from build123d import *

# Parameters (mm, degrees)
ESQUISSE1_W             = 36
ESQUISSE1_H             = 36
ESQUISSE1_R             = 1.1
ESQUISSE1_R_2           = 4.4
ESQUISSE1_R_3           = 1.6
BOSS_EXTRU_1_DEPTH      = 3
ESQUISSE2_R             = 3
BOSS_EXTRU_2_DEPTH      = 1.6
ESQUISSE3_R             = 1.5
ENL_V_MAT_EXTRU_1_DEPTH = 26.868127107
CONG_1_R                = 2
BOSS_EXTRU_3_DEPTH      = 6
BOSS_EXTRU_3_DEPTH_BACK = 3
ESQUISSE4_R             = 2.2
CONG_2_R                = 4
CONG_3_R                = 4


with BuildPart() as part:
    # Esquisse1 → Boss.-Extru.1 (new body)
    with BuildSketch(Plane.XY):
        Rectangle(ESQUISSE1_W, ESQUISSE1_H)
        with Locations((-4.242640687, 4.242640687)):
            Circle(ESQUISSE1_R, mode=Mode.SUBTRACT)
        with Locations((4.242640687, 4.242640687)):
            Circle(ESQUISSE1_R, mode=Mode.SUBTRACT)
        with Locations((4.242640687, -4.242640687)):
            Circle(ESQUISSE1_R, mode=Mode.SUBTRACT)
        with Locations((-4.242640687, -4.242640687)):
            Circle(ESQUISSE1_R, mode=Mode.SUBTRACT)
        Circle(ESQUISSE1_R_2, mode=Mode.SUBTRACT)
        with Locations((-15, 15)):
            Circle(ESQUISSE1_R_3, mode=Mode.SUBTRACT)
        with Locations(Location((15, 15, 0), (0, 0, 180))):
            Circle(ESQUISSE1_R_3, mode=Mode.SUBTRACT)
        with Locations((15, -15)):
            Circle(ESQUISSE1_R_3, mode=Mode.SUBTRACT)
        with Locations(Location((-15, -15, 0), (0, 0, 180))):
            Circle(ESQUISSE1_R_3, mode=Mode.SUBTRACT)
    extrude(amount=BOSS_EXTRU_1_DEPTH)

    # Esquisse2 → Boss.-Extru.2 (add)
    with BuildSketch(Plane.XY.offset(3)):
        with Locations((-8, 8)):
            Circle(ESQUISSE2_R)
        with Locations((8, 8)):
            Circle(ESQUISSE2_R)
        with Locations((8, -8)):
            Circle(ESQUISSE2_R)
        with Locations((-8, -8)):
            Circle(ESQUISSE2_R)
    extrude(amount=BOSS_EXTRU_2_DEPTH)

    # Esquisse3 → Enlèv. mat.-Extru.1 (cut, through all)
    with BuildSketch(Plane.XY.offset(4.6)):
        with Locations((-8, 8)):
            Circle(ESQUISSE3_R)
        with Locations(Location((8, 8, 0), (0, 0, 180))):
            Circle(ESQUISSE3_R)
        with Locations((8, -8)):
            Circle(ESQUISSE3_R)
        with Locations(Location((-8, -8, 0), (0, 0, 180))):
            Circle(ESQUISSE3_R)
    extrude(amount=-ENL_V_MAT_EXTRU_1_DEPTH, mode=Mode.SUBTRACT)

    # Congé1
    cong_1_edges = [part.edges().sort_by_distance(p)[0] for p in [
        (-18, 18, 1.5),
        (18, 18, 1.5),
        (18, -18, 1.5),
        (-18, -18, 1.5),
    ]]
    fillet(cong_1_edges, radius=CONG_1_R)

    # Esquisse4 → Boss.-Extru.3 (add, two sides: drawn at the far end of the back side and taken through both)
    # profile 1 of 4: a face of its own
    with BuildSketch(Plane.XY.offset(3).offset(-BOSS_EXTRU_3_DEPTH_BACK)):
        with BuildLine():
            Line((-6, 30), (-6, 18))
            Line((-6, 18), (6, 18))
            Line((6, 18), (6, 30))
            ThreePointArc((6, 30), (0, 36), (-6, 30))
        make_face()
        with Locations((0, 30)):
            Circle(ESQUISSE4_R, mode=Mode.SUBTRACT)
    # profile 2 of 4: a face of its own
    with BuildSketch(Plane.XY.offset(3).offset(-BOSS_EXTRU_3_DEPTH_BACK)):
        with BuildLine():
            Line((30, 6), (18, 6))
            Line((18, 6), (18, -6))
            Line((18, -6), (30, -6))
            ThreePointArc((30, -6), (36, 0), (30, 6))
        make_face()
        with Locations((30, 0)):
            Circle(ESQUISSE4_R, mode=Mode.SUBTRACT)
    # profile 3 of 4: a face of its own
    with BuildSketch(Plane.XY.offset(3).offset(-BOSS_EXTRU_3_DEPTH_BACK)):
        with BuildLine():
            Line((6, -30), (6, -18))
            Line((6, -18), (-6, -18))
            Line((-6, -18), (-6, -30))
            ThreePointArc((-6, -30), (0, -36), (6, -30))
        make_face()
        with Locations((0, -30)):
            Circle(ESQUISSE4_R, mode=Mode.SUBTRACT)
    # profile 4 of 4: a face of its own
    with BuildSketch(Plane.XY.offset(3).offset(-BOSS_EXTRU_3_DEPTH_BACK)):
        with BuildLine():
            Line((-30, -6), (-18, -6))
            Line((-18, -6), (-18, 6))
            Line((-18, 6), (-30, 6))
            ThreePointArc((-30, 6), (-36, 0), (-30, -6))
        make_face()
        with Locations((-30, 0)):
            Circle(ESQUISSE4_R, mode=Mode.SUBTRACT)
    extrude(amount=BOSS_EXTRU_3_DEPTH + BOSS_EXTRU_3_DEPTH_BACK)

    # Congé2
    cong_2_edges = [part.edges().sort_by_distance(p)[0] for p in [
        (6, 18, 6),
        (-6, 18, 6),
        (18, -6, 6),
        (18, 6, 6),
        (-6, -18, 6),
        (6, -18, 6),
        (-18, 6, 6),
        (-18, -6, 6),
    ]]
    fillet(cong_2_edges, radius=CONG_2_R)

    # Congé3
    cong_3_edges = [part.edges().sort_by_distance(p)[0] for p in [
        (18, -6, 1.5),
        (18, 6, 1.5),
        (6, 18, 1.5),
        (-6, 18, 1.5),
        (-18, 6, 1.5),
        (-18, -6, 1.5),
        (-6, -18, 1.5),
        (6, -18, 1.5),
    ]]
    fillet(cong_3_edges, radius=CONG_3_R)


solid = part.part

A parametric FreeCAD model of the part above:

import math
import FreeCAD as App
import Part
import Sketcher

V = App.Vector
Q = App.Units.Quantity


def edges_at(feature, points):
    """Names of the edges that pass closest to the given points."""
    edges = feature.Shape.Edges
    near = lambda p: min(range(len(edges)), key=lambda i: edges[i].distToShape(Part.Vertex(*p))[0])
    return sorted({f"Edge{near(p) + 1}" for p in points})


def add_polygon(sketch, points):
    """Adds a closed chain of lines whose ends are joined by coincident constraints."""
    first, n = sketch.GeometryCount, len(points)
    for a, b in zip(points, points[1:] + points[:1]):
        sketch.addGeometry(Part.LineSegment(App.Vector(*a, 0), App.Vector(*b, 0)), False)
    for i in range(n):
        sketch.addConstraint(Sketcher.Constraint("Coincident", first + i, 2, first + (i + 1) % n, 1))

doc = App.newDocument("Part")
body = doc.addObject("PartDesign::Body", "Body")

sketch1 = body.newObject("Sketcher::SketchObject", "Sketch")
sketch1.AttachmentSupport = (doc.getObject("XY_Plane"), [""])
sketch1.MapMode = "FlatFace"
add_polygon(sketch1, [(-18, 18), (-18, -18), (18, -18), (18, 18)])
sketch1.addGeometry(Part.Circle(V(-15, -15, 0), V(0, 0, 1), 1.6), False)
sketch1.addGeometry(Part.Circle(V(-4.2, -4.2, 0), V(0, 0, 1), 1.1), False)
sketch1.addGeometry(Part.Circle(V(15, -15, 0), V(0, 0, 1), 1.6), False)
sketch1.addGeometry(Part.Circle(V(4.2, -4.2, 0), V(0, 0, 1), 1.1), False)
sketch1.addGeometry(Part.Circle(V(-4.2, 4.2, 0), V(0, 0, 1), 1.1), False)
sketch1.addGeometry(Part.Circle(V(-15, 15, 0), V(0, 0, 1), 1.6), False)
sketch1.addGeometry(Part.Circle(V(0, 0, 0), V(0, 0, 1), 4.4), False)
sketch1.addGeometry(Part.Circle(V(4.2, 4.2, 0), V(0, 0, 1), 1.1), False)
sketch1.addGeometry(Part.Circle(V(15, 15, 0), V(0, 0, 1), 1.6), False)
sketch1.addConstraint(Sketcher.Constraint("Vertical", 0))
sketch1.addConstraint(Sketcher.Constraint("Horizontal", 1))
sketch1.addConstraint(Sketcher.Constraint("Vertical", 2))
sketch1.addConstraint(Sketcher.Constraint("Horizontal", 3))
sketch1.addConstraint(Sketcher.Constraint("Coincident", 10, 3, -1, 1))
sketch1.addConstraint(Sketcher.Constraint("Equal", 4, 6))
sketch1.addConstraint(Sketcher.Constraint("Equal", 5, 7))
sketch1.addConstraint(Sketcher.Constraint("Equal", 7, 8))
sketch1.addConstraint(Sketcher.Constraint("Equal", 6, 9))
sketch1.addConstraint(Sketcher.Constraint("Equal", 8, 11))
sketch1.addConstraint(Sketcher.Constraint("Equal", 9, 12))
sketch1.addConstraint(Sketcher.Constraint("Symmetric", 7, 3, 8, 3, -1, 1))
sketch1.addConstraint(Sketcher.Constraint("Symmetric", 6, 3, 9, 3, -1, 1))
sketch1.addConstraint(Sketcher.Constraint("Symmetric", 5, 3, 11, 3, -1, 1))
sketch1.addConstraint(Sketcher.Constraint("Symmetric", 4, 3, 12, 3, -1, 1))
sketch1.addConstraint(Sketcher.Constraint("Symmetric", 0, 2, 2, 2, -1, 1))
sketch1.addConstraint(Sketcher.Constraint("Symmetric", 4, 3, 6, 3, -2))
sketch1.addConstraint(Sketcher.Constraint("Symmetric", 5, 3, 7, 3, -2))
sketch1.addConstraint(Sketcher.Constraint("Equal", 3, 0))
sketch1.addConstraint(Sketcher.Constraint("Diameter", 4, Q("3.2 mm")))
sketch1.addConstraint(Sketcher.Constraint("Diameter", 5, Q("2.2 mm")))
sketch1.addConstraint(Sketcher.Constraint("Diameter", 10, Q("8.8 mm")))
sketch1.addConstraint(Sketcher.Constraint("DistanceX", 1, 1, 1, 2, Q("36 mm")))
sketch1.addConstraint(Sketcher.Constraint("DistanceX", 4, 3, -1, 1, Q("15 mm")))
sketch1.addConstraint(Sketcher.Constraint("DistanceY", 4, 3, -1, 1, Q("15 mm")))
sketch1.addConstraint(Sketcher.Constraint("DistanceX", 5, 3, -1, 1, Q("4.242641 mm")))
sketch1.addConstraint(Sketcher.Constraint("DistanceY", 5, 3, -1, 1, Q("4.242641 mm")))
pad1 = body.newObject("PartDesign::Pad", "Pad")
pad1.Profile = sketch1
pad1.Length = 3

sketch2 = body.newObject("Sketcher::SketchObject", "Sketch001")
sketch2.AttachmentSupport = (doc.getObject("XY_Plane"), [""])
sketch2.MapMode = "FlatFace"
sketch2.AttachmentOffset = App.Placement(V(0, 0, 3), App.Rotation())
sketch2.addGeometry(Part.Circle(V(-8, 8, 0), V(0, 0, 1), 3), False)
sketch2.addGeometry(Part.Circle(V(8, 8, 0), V(0, 0, 1), 3), False)
sketch2.addGeometry(Part.Circle(V(8, -8, 0), V(0, 0, 1), 3), False)
sketch2.addGeometry(Part.Circle(V(-8, -8, 0), V(0, 0, 1), 3), False)
sketch2.addConstraint(Sketcher.Constraint("Equal", 0, 1))
sketch2.addConstraint(Sketcher.Constraint("Equal", 1, 2))
sketch2.addConstraint(Sketcher.Constraint("Equal", 2, 3))
sketch2.addConstraint(Sketcher.Constraint("Symmetric", 0, 3, 2, 3, -1, 1))
sketch2.addConstraint(Sketcher.Constraint("Symmetric", 1, 3, 3, 3, -1, 1))
sketch2.addConstraint(Sketcher.Constraint("Symmetric", 0, 3, 1, 3, -2))
sketch2.addConstraint(Sketcher.Constraint("Diameter", 0, Q("6 mm")))
sketch2.addConstraint(Sketcher.Constraint("DistanceX", 0, 3, -1, 1, Q("8 mm")))
sketch2.addConstraint(Sketcher.Constraint("DistanceY", -1, 1, 0, 3, Q("8 mm")))
pad2 = body.newObject("PartDesign::Pad", "Pad001")
pad2.Profile = sketch2
pad2.Length = 1.6

sketch3 = body.newObject("Sketcher::SketchObject", "Sketch002")
sketch3.AttachmentSupport = (doc.getObject("XY_Plane"), [""])
sketch3.MapMode = "FlatFace"
sketch3.AttachmentOffset = App.Placement(V(0, 0, 4.6), App.Rotation())
sketch3.addGeometry(Part.Circle(V(-8, 8, 0), V(0, 0, 1), 1.5), False)
sketch3.addGeometry(Part.Circle(V(8, 8, 0), V(0, 0, 1), 1.5), False)
sketch3.addGeometry(Part.Circle(V(8, -8, 0), V(0, 0, 1), 1.5), False)
sketch3.addGeometry(Part.Circle(V(-8, -8, 0), V(0, 0, 1), 1.5), False)
sketch3.addConstraint(Sketcher.Constraint("Equal", 0, 1))
sketch3.addConstraint(Sketcher.Constraint("Equal", 1, 2))
sketch3.addConstraint(Sketcher.Constraint("Equal", 2, 3))
sketch3.addConstraint(Sketcher.Constraint("Symmetric", 0, 3, 2, 3, -1, 1))
sketch3.addConstraint(Sketcher.Constraint("Symmetric", 1, 3, 3, 3, -1, 1))
sketch3.addConstraint(Sketcher.Constraint("Symmetric", 0, 3, 1, 3, -2))
sketch3.addConstraint(Sketcher.Constraint("Diameter", 0, Q("3 mm")))
sketch3.addConstraint(Sketcher.Constraint("DistanceX", 0, 3, -1, 1, Q("8 mm")))
sketch3.addConstraint(Sketcher.Constraint("DistanceY", -1, 1, 0, 3, Q("8 mm")))
pocket1 = body.newObject("PartDesign::Pocket", "Pocket")
pocket1.Profile = sketch3
pocket1.Type = "ThroughAll"
doc.recompute()

fillet = body.newObject("PartDesign::Fillet", "Fillet")
fillet.Base = (pocket1, edges_at(pocket1, [
    (-18, 18, 1.5),
    (18, 18, 1.5),
    (18, -18, 1.5),
    (-18, -18, 1.5),
]))
fillet.Radius = 2

sketch4 = body.newObject("Sketcher::SketchObject", "Sketch003")
sketch4.AttachmentSupport = (doc.getObject("XY_Plane"), [""])
sketch4.MapMode = "FlatFace"
sketch4.AttachmentOffset = App.Placement(V(0, 0, 3), App.Rotation())
sketch4.addGeometry(Part.LineSegment(V(-6, 30, 0), V(-6, 18, 0)), False)
sketch4.addGeometry(Part.LineSegment(V(-6, 18, 0), V(6, 18, 0)), False)
sketch4.addGeometry(Part.LineSegment(V(6, 18, 0), V(6, 30, 0)), False)
sketch4.addGeometry(Part.ArcOfCircle(Part.Circle(V(0, 30, 0), V(0, 0, 1), 6), math.radians(0), math.radians(180)), False)
sketch4.addGeometry(Part.Circle(V(0, 30, 0), V(0, 0, 1), 2.2), False)
sketch4.addGeometry(Part.LineSegment(V(30, 6, 0), V(18, 6, 0)), False)
sketch4.addGeometry(Part.LineSegment(V(18, 6, 0), V(18, -6, 0)), False)
sketch4.addGeometry(Part.LineSegment(V(18, -6, 0), V(30, -6, 0)), False)
sketch4.addGeometry(Part.ArcOfCircle(Part.Circle(V(30, 0, 0), V(0, 0, 1), 6), math.radians(-90), math.radians(90)), False)
sketch4.addGeometry(Part.Circle(V(30, 0, 0), V(0, 0, 1), 2.2), False)
sketch4.addGeometry(Part.LineSegment(V(6, -30, 0), V(6, -18, 0)), False)
sketch4.addGeometry(Part.LineSegment(V(6, -18, 0), V(-6, -18, 0)), False)
sketch4.addGeometry(Part.LineSegment(V(-6, -18, 0), V(-6, -30, 0)), False)
sketch4.addGeometry(Part.ArcOfCircle(Part.Circle(V(0, -30, 0), V(0, 0, 1), 6), math.radians(180), math.radians(360)), False)
sketch4.addGeometry(Part.Circle(V(0, -30, 0), V(0, 0, 1), 2.2), False)
sketch4.addGeometry(Part.LineSegment(V(-30, -6, 0), V(-18, -6, 0)), False)
sketch4.addGeometry(Part.LineSegment(V(-18, -6, 0), V(-18, 6, 0)), False)
sketch4.addGeometry(Part.LineSegment(V(-18, 6, 0), V(-30, 6, 0)), False)
sketch4.addGeometry(Part.ArcOfCircle(Part.Circle(V(-30, 0, 0), V(0, 0, 1), 6), math.radians(90), math.radians(270)), False)
sketch4.addGeometry(Part.Circle(V(-30, 0, 0), V(0, 0, 1), 2.2), False)
sketch4.addConstraint(Sketcher.Constraint("Coincident", 0, 2, 1, 1))
sketch4.addConstraint(Sketcher.Constraint("Coincident", 1, 2, 2, 1))
sketch4.addConstraint(Sketcher.Constraint("Tangent", 2, 2, 3, 1))
sketch4.addConstraint(Sketcher.Constraint("Tangent", 3, 2, 0, 1))
sketch4.addConstraint(Sketcher.Constraint("Coincident", 5, 2, 6, 1))
sketch4.addConstraint(Sketcher.Constraint("Coincident", 6, 2, 7, 1))
sketch4.addConstraint(Sketcher.Constraint("Tangent", 7, 2, 8, 1))
sketch4.addConstraint(Sketcher.Constraint("Tangent", 8, 2, 5, 1))
sketch4.addConstraint(Sketcher.Constraint("Coincident", 10, 2, 11, 1))
sketch4.addConstraint(Sketcher.Constraint("Coincident", 11, 2, 12, 1))
sketch4.addConstraint(Sketcher.Constraint("Tangent", 12, 2, 13, 1))
sketch4.addConstraint(Sketcher.Constraint("Tangent", 13, 2, 10, 1))
sketch4.addConstraint(Sketcher.Constraint("Coincident", 15, 2, 16, 1))
sketch4.addConstraint(Sketcher.Constraint("Coincident", 16, 2, 17, 1))
sketch4.addConstraint(Sketcher.Constraint("Tangent", 17, 2, 18, 1))
sketch4.addConstraint(Sketcher.Constraint("Tangent", 18, 2, 15, 1))
sketch4.addConstraint(Sketcher.Constraint("Vertical", 0))
sketch4.addConstraint(Sketcher.Constraint("Horizontal", 1))
sketch4.addConstraint(Sketcher.Constraint("Vertical", 2))
sketch4.addConstraint(Sketcher.Constraint("Horizontal", 5))
sketch4.addConstraint(Sketcher.Constraint("Vertical", 6))
sketch4.addConstraint(Sketcher.Constraint("Horizontal", 7))
sketch4.addConstraint(Sketcher.Constraint("Vertical", 10))
sketch4.addConstraint(Sketcher.Constraint("Horizontal", 11))
sketch4.addConstraint(Sketcher.Constraint("Vertical", 12))
sketch4.addConstraint(Sketcher.Constraint("Horizontal", 15))
sketch4.addConstraint(Sketcher.Constraint("Vertical", 16))
sketch4.addConstraint(Sketcher.Constraint("Horizontal", 17))
sketch4.addConstraint(Sketcher.Constraint("Coincident", 4, 3, 3, 3))
sketch4.addConstraint(Sketcher.Constraint("Coincident", 9, 3, 8, 3))
sketch4.addConstraint(Sketcher.Constraint("Coincident", 14, 3, 13, 3))
sketch4.addConstraint(Sketcher.Constraint("Coincident", 19, 3, 18, 3))
sketch4.addConstraint(Sketcher.Constraint("Equal", 3, 8))
sketch4.addConstraint(Sketcher.Constraint("Equal", 4, 9))
sketch4.addConstraint(Sketcher.Constraint("Equal", 8, 13))
sketch4.addConstraint(Sketcher.Constraint("Equal", 9, 14))
sketch4.addConstraint(Sketcher.Constraint("Equal", 13, 18))
sketch4.addConstraint(Sketcher.Constraint("Equal", 14, 19))
sketch4.addConstraint(Sketcher.Constraint("Symmetric", 3, 3, 13, 3, -1, 1))
sketch4.addConstraint(Sketcher.Constraint("Symmetric", 8, 3, 18, 3, -1, 1))
sketch4.addConstraint(Sketcher.Constraint("Symmetric", 6, 2, 15, 2, -2))
sketch4.addConstraint(Sketcher.Constraint("Symmetric", 1, 2, 10, 2, -1))
sketch4.addConstraint(Sketcher.Constraint("Equal", 1, 5))
sketch4.addConstraint(Sketcher.Constraint("Equal", 17, 0))
sketch4.addConstraint(Sketcher.Constraint("Radius", 3, Q("6 mm")))
sketch4.addConstraint(Sketcher.Constraint("Diameter", 4, Q("4.4 mm")))
sketch4.addConstraint(Sketcher.Constraint("DistanceY", -1, 1, 3, 3, Q("30 mm")))
sketch4.addConstraint(Sketcher.Constraint("DistanceX", -1, 1, 8, 3, Q("30 mm")))
pad3 = body.newObject("PartDesign::Pad", "Pad002")
pad3.Profile = sketch4
pad3.Type = "TwoLengths"
pad3.Length = 6
pad3.Length2 = 3
doc.recompute()

fillet2 = body.newObject("PartDesign::Fillet", "Fillet001")
fillet2.Base = (pad3, edges_at(pad3, [
    (6, 18, 6),
    (-6, 18, 6),
    (18, -6, 6),
    (18, 6, 6),
    (-6, -18, 6),
    (6, -18, 6),
    (-18, 6, 6),
    (-18, -6, 6),
]))
fillet2.Radius = 4
doc.recompute()

fillet3 = body.newObject("PartDesign::Fillet", "Fillet002")
fillet3.Base = (fillet2, edges_at(fillet2, [
    (18, -6, 1.5),
    (18, 6, 1.5),
    (6, 18, 1.5),
    (-6, 18, 1.5),
    (-18, 6, 1.5),
    (-18, -6, 1.5),
    (-6, -18, 1.5),
    (6, -18, 1.5),
]))
fillet3.Radius = 4

doc.recompute()
